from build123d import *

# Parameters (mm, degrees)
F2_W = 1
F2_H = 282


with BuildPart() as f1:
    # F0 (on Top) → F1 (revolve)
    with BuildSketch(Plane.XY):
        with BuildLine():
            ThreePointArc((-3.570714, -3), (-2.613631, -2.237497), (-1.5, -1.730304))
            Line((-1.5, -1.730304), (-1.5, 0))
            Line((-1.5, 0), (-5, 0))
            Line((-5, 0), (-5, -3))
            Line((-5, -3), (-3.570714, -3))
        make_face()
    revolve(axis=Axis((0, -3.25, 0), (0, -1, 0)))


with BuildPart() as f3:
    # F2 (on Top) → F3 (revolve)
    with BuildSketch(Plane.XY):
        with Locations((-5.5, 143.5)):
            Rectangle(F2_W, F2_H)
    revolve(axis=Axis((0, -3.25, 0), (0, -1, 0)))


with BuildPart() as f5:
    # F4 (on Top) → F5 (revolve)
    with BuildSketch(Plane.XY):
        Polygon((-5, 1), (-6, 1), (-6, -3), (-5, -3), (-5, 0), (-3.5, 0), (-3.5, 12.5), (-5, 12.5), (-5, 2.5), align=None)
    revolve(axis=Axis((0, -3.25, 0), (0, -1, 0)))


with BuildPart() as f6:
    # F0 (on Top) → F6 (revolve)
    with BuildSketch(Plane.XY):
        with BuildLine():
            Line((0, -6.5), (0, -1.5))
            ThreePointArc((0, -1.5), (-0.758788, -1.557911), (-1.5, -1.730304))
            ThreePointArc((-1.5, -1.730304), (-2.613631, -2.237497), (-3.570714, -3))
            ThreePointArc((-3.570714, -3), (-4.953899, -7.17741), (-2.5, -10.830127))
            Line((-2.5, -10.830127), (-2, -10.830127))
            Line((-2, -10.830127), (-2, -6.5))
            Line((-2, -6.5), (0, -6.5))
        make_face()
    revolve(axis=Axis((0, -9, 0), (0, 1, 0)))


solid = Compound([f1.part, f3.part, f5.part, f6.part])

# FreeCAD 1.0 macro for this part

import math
import FreeCAD as App
import Part
import Sketcher
from FreeCAD import Vector
Q = App.Units.Quantity

doc = App.newDocument("Part")
body = doc.addObject("PartDesign::Body", "Body")

# Sketch on XY plane
sketch1 = doc.addObject("Sketcher::SketchObject", "Sketch")
body.addObject(sketch1)
sketch1.AttachmentSupport = (doc.XY_Plane, [""])
sketch1.MapMode = "FlatFace"
sketch1.addGeometry([
    Part.ArcOfCircle(Part.Circle(Vector(0, -6.5, 0), Vector(0, 0, 1), 5), math.radians(107), math.radians(136)),  # 0
    Part.LineSegment(Vector(-1.5, -1.7, 0), Vector(-1.5, 0, 0)),  # 1
    Part.LineSegment(Vector(-1.5, 0, 0), Vector(-5, 0, 0)),  # 2
    Part.LineSegment(Vector(-5, 0, 0), Vector(-5, -3, 0)),  # 3
    Part.LineSegment(Vector(-5, -3, 0), Vector(-3.6, -3, 0)),  # 4
], False)
sketch1.addConstraint([
    Sketcher.Constraint("Coincident", 0, 1, 1, 1),
    Sketcher.Constraint("Coincident", 1, 2, 2, 1),
    Sketcher.Constraint("Coincident", 2, 2, 3, 1),
    Sketcher.Constraint("Coincident", 3, 2, 4, 1),
    Sketcher.Constraint("Coincident", 4, 2, 0, 2),
    Sketcher.Constraint("Vertical", 1),
    Sketcher.Constraint("Horizontal", 2),
    Sketcher.Constraint("Vertical", 3),
    Sketcher.Constraint("Horizontal", 4),
    Sketcher.Constraint("PointOnObject", 0, 3, -2),
    Sketcher.Constraint("PointOnObject", 1, 2, -1),
    Sketcher.Constraint("Radius", 0, Q("5.000001 mm")),
    Sketcher.Constraint("DistanceY", 3, 2, 3, 1, Q("3 mm")),
    Sketcher.Constraint("DistanceX", 2, 2, 2, 1, Q("3.5 mm")),
    Sketcher.Constraint("DistanceX", 2, 2, -1, 1, Q("5 mm")),
    Sketcher.Constraint("DistanceY", 0, 3, -1, 1, Q("6.500001 mm")),
])
revolution = doc.addObject("PartDesign::Revolution", "Revolution")
body.addObject(revolution)
revolution.Profile = sketch1
revolution.ReferenceAxis = (sketch1, ["V_Axis"])
revolution.Angle = 360
body2 = doc.addObject("PartDesign::Body", "Body001")

# Sketch on XY plane
sketch2 = doc.addObject("Sketcher::SketchObject", "Sketch001")
body2.addObject(sketch2)
sketch2.AttachmentSupport = (doc.getObject("XY_Plane001"), [""])
sketch2.MapMode = "FlatFace"
sketch2.addGeometry([
    Part.LineSegment(Vector(-6, 284.5, 0), Vector(-6, 2.5, 0)),
    Part.LineSegment(Vector(-6, 2.5, 0), Vector(-5, 2.5, 0)),
    Part.LineSegment(Vector(-5, 2.5, 0), Vector(-5, 284.5, 0)),
    Part.LineSegment(Vector(-5, 284.5, 0), Vector(-6, 284.5, 0)),
], False)
sketch2.addConstraint([
    Sketcher.Constraint("Coincident", 0, 2, 1, 1),
    Sketcher.Constraint("Coincident", 1, 2, 2, 1),
    Sketcher.Constraint("Coincident", 2, 2, 3, 1),
    Sketcher.Constraint("Coincident", 3, 2, 0, 1),
    Sketcher.Constraint("Vertical", 0),
    Sketcher.Constraint("Horizontal", 1),
    Sketcher.Constraint("Vertical", 2),
    Sketcher.Constraint("Horizontal", 3),
    Sketcher.Constraint("DistanceX", 1, 1, 1, 2, Q("1 mm")),
    Sketcher.Constraint("DistanceY", 0, 2, 0, 1, Q("282 mm")),
    Sketcher.Constraint("DistanceX", 0, 2, -1, 1, Q("6 mm")),
    Sketcher.Constraint("DistanceY", -1, 1, 0, 2, Q("2.5 mm")),
])
revolution2 = doc.addObject("PartDesign::Revolution", "Revolution001")
body2.addObject(revolution2)
revolution2.Profile = sketch2
revolution2.ReferenceAxis = (sketch2, ["V_Axis"])
revolution2.Angle = 360
body3 = doc.addObject("PartDesign::Body", "Body002")

# Sketch on XY plane
sketch3 = doc.addObject("Sketcher::SketchObject", "Sketch002")
body3.addObject(sketch3)
sketch3.AttachmentSupport = (doc.getObject("XY_Plane002"), [""])
sketch3.MapMode = "FlatFace"
sketch3.addGeometry([
    Part.LineSegment(Vector(-5, 1, 0), Vector(-6, 1, 0)),  # 0
    Part.LineSegment(Vector(-6, 1, 0), Vector(-6, -3, 0)),  # 1
    Part.LineSegment(Vector(-6, -3, 0), Vector(-5, -3, 0)),  # 2
    Part.LineSegment(Vector(-5, -3, 0), Vector(-5, 0, 0)),  # 3
    Part.LineSegment(Vector(-5, 0, 0), Vector(-3.5, 0, 0)),  # 4
    Part.LineSegment(Vector(-3.5, 0, 0), Vector(-3.5, 12.5, 0)),  # 5
    Part.LineSegment(Vector(-3.5, 12.5, 0), Vector(-5, 12.5, 0)),  # 6
    Part.LineSegment(Vector(-5, 12.5, 0), Vector(-5, 1, 0)),  # 7
], False)
sketch3.addConstraint([
    Sketcher.Constraint("Coincident", 0, 2, 1, 1),
    Sketcher.Constraint("Coincident", 1, 2, 2, 1),
    Sketcher.Constraint("Coincident", 2, 2, 3, 1),
    Sketcher.Constraint("Coincident", 3, 2, 4, 1),
    Sketcher.Constraint("Coincident", 4, 2, 5, 1),
    Sketcher.Constraint("Coincident", 5, 2, 6, 1),
    Sketcher.Constraint("Coincident", 6, 2, 7, 1),
    Sketcher.Constraint("Coincident", 7, 2, 0, 1),
    Sketcher.Constraint("Horizontal", 0),
    Sketcher.Constraint("Vertical", 1),
    Sketcher.Constraint("Horizontal", 2),
    Sketcher.Constraint("Vertical", 3),
    Sketcher.Constraint("Horizontal", 4),
    Sketcher.Constraint("Vertical", 5),
    Sketcher.Constraint("Horizontal", 6),
    Sketcher.Constraint("Vertical", 7),
    Sketcher.Constraint("PointOnObject", 3, 2, -1),
    Sketcher.Constraint("Vertical", 3, 2, 6, 2),
    Sketcher.Constraint("DistanceX", 0, 2, 0, 1, Q("1 mm")),
    Sketcher.Constraint("DistanceY", 1, 2, 1, 1, Q("4 mm")),
    Sketcher.Constraint("DistanceY", 3, 1, 3, 2, Q("3 mm")),
    Sketcher.Constraint("DistanceX", 4, 1, 4, 2, Q("1.5 mm")),
    Sketcher.Constraint("DistanceY", 5, 1, 5, 2, Q("12.5 mm")),
    Sketcher.Constraint("DistanceX", 0, 2, -1, 1, Q("6 mm")),
])
revolution3 = doc.addObject("PartDesign::Revolution", "Revolution002")
body3.addObject(revolution3)
revolution3.Profile = sketch3
revolution3.ReferenceAxis = (sketch3, ["V_Axis"])
revolution3.Angle = 360
body4 = doc.addObject("PartDesign::Body", "Body003")

# Sketch on XY plane
sketch4 = doc.addObject("Sketcher::SketchObject", "Sketch003")
body4.addObject(sketch4)
sketch4.AttachmentSupport = (doc.getObject("XY_Plane003"), [""])
sketch4.MapMode = "FlatFace"
sketch4.addGeometry([
    Part.LineSegment(Vector(0, -6.5, 0), Vector(0, -1.5, 0)),  # 0
    Part.ArcOfCircle(Part.Circle(Vector(0, -6.5, 0), Vector(0, 0, 1), 5), math.radians(90), math.radians(107.46)),  # 1
    Part.ArcOfCircle(Part.Circle(Vector(0, -6.5, 0), Vector(0, 0, 1), 5), math.radians(107), math.radians(136)),  # 2
    Part.ArcOfCircle(Part.Circle(Vector(0, -6.5, 0), Vector(0, 0, 1), 5), math.radians(136), math.radians(240)),  # 3
    Part.LineSegment(Vector(-2.5, -10.8, 0), Vector(-2, -10.8, 0)),  # 4
    Part.LineSegment(Vector(-2, -10.8, 0), Vector(-2, -6.5, 0)),  # 5
    Part.LineSegment(Vector(-2, -6.5, 0), Vector(0, -6.5, 0)),  # 6
], False)
sketch4.addConstraint([
    Sketcher.Constraint("Coincident", 0, 2, 1, 1),
    Sketcher.Constraint("Tangent", 1, 2, 2, 1),
    Sketcher.Constraint("Tangent", 2, 2, 3, 1),
    Sketcher.Constraint("Coincident", 3, 2, 4, 1),
    Sketcher.Constraint("Coincident", 4, 2, 5, 1),
    Sketcher.Constraint("Coincident", 5, 2, 6, 1),
    Sketcher.Constraint("Coincident", 6, 2, 0, 1),
    Sketcher.Constraint("Vertical", 0),
    Sketcher.Constraint("Horizontal", 4),
    Sketcher.Constraint("Vertical", 5),
    Sketcher.Constraint("Horizontal", 6),
    Sketcher.Constraint("Coincident", 6, 2, 2, 3),
    Sketcher.Constraint("Equal", 2, 3),
    Sketcher.Constraint("PointOnObject", 2, 3, -2),
    Sketcher.Constraint("Radius", 2, Q("5.000001 mm")),
    Sketcher.Constraint("DistanceX", 6, 1, 6, 2, Q("2 mm")),
    Sketcher.Constraint("DistanceY", 0, 1, 0, 2, Q("5 mm")),
    Sketcher.Constraint("DistanceX", 4, 1, 4, 2, Q("0.5 mm")),
    Sketcher.Constraint("DistanceY", 2, 2, -1, 1, Q("3 mm")),
    Sketcher.Constraint("DistanceX", 3, 2, 1, 2, Q("1 mm")),
    Sketcher.Constraint("DistanceY", 2, 3, -1, 1, Q("6.500001 mm")),
])
revolution4 = doc.addObject("PartDesign::Revolution", "Revolution003")
body4.addObject(revolution4)
revolution4.Profile = sketch4
revolution4.ReferenceAxis = (sketch4, ["V_Axis"])
revolution4.Angle = 360

doc.recompute()
